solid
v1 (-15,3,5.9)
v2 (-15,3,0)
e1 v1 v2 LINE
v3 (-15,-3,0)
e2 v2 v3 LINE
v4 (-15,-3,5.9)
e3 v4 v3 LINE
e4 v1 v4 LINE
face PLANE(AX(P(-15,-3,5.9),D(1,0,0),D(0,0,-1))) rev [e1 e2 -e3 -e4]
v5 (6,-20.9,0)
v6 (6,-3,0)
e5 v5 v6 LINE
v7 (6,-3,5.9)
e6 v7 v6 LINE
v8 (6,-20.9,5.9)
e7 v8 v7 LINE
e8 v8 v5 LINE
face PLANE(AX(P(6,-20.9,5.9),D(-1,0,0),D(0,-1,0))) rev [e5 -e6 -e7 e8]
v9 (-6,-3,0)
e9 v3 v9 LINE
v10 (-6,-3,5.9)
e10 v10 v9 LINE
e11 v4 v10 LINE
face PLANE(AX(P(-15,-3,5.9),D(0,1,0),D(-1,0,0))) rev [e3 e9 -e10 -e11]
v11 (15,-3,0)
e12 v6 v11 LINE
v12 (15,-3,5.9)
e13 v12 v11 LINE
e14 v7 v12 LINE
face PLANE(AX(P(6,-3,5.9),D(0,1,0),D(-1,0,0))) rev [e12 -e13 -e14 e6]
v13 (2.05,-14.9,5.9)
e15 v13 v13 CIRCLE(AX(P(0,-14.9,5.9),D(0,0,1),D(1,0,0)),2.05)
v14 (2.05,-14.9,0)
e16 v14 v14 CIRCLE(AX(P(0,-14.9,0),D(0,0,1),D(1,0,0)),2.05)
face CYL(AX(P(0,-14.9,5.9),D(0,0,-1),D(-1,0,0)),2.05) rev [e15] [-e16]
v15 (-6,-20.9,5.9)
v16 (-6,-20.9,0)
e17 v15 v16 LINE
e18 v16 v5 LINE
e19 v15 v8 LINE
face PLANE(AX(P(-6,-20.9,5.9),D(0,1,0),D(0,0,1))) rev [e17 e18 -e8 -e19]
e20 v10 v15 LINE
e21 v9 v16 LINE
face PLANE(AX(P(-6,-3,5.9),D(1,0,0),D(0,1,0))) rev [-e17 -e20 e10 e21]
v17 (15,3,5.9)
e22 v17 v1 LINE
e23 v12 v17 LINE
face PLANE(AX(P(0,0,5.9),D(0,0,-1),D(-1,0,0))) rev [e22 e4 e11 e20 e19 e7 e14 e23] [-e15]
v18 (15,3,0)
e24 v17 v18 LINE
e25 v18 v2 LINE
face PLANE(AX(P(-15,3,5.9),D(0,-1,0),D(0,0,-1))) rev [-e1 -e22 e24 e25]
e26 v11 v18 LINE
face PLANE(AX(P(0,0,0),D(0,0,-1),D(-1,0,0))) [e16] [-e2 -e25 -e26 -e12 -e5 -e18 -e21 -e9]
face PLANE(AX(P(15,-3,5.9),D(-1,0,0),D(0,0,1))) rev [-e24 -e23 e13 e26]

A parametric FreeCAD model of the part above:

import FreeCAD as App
import Part
import Sketcher

V = App.Vector

doc = App.newDocument("Part")
body = doc.addObject("PartDesign::Body", "Body")

# Sketch on XY plane
sketch1 = body.newObject("Sketcher::SketchObject", "Sketch")
sketch1.AttachmentSupport = (doc.getObject("XY_Plane"), [""])
sketch1.MapMode = "FlatFace"
sketch1.addGeometry([
    Part.LineSegment(V(-15, -3, 0), V(-6, -3, 0)),  # 0
    Part.LineSegment(V(-6, -3, 0), V(-6, -20.9, 0)),  # 1
    Part.LineSegment(V(-6, -20.9, 0), V(6, -20.9, 0)),  # 2
    Part.LineSegment(V(6, -20.9, 0), V(6, -3, 0)),  # 3
    Part.LineSegment(V(6, -3, 0), V(15, -3, 0)),  # 4
    Part.LineSegment(V(15, -3, 0), V(15, 3, 0)),  # 5
    Part.LineSegment(V(15, 3, 0), V(-15, 3, 0)),  # 6
    Part.LineSegment(V(-15, 3, 0), V(-15, -3, 0)),  # 7
    Part.Circle(V(0, -14.9, 0), V(0, 0, 1), 2.05),  # 8
], False)
sketch1.addConstraint([
    Sketcher.Constraint("Coincident", 0, 2, 1, 1),
    Sketcher.Constraint("Coincident", 1, 2, 2, 1),
    Sketcher.Constraint("Coincident", 2, 2, 3, 1),
    Sketcher.Constraint("Coincident", 3, 2, 4, 1),
    Sketcher.Constraint("Coincident", 4, 2, 5, 1),
    Sketcher.Constraint("Coincident", 5, 2, 6, 1),
    Sketcher.Constraint("Coincident", 6, 2, 7, 1),
    Sketcher.Constraint("Coincident", 7, 2, 0, 1),
    Sketcher.Constraint("Horizontal", 0),
    Sketcher.Constraint("Vertical", 1),
    Sketcher.Constraint("Horizontal", 2),
    Sketcher.Constraint("Vertical", 3),
    Sketcher.Constraint("Horizontal", 4),
    Sketcher.Constraint("Vertical", 5),
    Sketcher.Constraint("Horizontal", 6),
    Sketcher.Constraint("Vertical", 7),
    Sketcher.Constraint("Symmetric", 4, 2, 6, 2, -1, 1),
    Sketcher.Constraint("Symmetric", 0, 2, 3, 2, -2),
    Sketcher.Constraint("PointOnObject", 8, 3, -2),
    Sketcher.Constraint("Diameter", 8, 4.1),
    Sketcher.Constraint("DistanceX", 0, 1, 0, 2, 9.0),
    Sketcher.Constraint("DistanceX", 2, 1, 2, 2, 12.0),
    Sketcher.Constraint("DistanceY", 5, 1, 5, 2, 6.0),
    Sketcher.Constraint("DistanceY", 1, 2, 1, 1, 17.9),
    Sketcher.Constraint("DistanceY", 1, 2, 8, 3, 6.0),
])
pad1 = body.newObject("PartDesign::Pad", "Pad")
pad1.Profile = sketch1
pad1.Length = 5.9

doc.recompute()
